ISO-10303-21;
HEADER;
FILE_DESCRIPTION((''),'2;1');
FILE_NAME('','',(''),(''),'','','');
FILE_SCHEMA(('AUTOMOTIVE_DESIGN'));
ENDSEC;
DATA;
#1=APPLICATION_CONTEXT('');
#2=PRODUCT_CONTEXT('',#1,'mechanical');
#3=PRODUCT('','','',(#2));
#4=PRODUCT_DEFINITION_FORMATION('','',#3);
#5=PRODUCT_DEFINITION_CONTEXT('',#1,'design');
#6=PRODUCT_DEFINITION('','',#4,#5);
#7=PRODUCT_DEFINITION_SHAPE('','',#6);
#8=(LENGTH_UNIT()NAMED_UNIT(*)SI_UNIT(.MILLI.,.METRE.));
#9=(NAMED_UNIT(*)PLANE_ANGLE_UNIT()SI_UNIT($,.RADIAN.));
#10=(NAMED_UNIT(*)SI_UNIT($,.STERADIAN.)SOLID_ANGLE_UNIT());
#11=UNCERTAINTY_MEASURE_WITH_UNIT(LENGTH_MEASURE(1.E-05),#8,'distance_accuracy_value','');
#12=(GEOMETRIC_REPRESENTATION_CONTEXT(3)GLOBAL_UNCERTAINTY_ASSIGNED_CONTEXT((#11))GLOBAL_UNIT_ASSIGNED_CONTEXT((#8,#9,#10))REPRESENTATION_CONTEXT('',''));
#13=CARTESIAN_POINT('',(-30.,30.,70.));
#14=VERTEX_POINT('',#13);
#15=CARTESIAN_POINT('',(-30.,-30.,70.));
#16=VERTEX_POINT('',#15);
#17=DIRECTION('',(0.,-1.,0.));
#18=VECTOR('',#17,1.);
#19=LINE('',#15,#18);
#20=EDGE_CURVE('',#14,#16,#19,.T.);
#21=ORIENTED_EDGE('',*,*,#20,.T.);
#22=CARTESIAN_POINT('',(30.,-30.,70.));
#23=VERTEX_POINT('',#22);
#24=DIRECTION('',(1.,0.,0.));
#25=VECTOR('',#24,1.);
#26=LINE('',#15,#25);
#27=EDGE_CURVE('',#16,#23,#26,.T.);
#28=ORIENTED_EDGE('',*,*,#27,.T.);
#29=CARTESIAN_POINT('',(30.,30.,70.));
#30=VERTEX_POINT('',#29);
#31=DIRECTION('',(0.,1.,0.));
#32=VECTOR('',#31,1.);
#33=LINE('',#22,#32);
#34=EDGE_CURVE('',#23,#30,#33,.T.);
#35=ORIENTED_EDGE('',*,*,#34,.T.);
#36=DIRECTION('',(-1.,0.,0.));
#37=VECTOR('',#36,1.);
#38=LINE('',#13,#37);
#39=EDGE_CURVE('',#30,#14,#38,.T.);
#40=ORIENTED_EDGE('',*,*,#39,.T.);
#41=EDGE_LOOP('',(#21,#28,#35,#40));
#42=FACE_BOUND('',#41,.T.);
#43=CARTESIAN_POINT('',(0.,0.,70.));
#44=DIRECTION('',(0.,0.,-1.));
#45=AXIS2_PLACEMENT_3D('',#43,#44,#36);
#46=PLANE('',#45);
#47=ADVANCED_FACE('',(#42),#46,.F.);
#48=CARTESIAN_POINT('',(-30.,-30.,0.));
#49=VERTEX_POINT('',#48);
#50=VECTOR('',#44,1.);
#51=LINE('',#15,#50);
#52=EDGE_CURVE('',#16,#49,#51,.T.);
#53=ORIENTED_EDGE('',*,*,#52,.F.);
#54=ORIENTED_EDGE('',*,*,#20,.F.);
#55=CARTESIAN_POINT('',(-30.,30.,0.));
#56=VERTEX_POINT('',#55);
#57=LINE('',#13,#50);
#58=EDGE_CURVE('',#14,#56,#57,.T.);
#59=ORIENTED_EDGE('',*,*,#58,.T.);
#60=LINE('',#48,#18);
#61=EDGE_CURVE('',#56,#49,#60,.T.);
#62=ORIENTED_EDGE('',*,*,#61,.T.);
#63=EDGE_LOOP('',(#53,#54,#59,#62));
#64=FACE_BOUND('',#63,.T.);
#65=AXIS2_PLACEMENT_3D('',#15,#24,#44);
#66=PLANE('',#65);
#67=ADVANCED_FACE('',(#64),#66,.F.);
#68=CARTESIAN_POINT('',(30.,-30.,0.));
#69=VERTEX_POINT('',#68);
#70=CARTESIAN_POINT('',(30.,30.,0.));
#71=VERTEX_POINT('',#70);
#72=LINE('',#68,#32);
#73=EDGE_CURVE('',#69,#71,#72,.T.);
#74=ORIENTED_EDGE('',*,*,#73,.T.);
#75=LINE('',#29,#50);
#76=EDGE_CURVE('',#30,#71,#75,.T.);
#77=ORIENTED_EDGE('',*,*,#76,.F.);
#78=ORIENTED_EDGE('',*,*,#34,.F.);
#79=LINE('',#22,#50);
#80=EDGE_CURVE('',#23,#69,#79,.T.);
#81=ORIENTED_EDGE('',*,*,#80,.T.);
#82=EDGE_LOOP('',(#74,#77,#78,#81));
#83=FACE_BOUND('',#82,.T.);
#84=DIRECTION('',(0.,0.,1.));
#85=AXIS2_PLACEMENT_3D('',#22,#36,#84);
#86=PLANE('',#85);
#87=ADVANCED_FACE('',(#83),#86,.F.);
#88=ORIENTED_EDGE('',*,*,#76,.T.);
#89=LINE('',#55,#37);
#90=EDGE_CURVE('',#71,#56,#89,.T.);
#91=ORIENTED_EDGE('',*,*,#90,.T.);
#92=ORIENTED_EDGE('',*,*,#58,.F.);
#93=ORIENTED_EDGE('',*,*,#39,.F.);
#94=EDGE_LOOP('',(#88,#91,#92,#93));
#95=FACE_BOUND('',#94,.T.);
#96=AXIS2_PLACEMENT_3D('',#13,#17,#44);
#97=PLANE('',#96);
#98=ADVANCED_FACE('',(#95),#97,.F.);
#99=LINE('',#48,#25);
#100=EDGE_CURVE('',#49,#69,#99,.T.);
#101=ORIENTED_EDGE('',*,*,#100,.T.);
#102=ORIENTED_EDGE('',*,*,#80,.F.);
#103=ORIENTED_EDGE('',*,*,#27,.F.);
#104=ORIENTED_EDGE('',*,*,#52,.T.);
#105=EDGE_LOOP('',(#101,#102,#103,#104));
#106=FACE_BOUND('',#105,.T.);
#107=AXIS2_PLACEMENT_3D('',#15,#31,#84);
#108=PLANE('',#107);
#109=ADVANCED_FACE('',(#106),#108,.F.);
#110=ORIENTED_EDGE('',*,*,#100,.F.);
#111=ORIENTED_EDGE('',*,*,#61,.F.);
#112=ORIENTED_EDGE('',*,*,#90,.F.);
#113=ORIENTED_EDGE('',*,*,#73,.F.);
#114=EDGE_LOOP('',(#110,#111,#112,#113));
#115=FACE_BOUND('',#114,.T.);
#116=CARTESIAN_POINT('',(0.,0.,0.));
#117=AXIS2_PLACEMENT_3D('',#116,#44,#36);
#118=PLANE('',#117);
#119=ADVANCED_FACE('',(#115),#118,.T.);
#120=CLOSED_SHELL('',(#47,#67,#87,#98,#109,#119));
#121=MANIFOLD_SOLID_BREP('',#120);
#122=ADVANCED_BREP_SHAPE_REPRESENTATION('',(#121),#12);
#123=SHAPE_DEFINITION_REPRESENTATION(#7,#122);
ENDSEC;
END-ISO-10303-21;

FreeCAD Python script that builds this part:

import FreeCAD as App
import Part
import Sketcher

doc = App.newDocument("Part")
body = doc.addObject("PartDesign::Body", "Body")

# Sketch on XY plane
sketch1 = body.newObject("Sketcher::SketchObject", "Sketch")
sketch1.AttachmentSupport = (doc.getObject("XY_Plane"), [""])
sketch1.MapMode = "FlatFace"
sketch1.addGeometry(Part.LineSegment(App.Vector(-30, 30, 0), App.Vector(-30, -30, 0)), False)
sketch1.addGeometry(Part.LineSegment(App.Vector(-30, -30, 0), App.Vector(30, -30, 0)), False)
sketch1.addGeometry(Part.LineSegment(App.Vector(30, -30, 0), App.Vector(30, 30, 0)), False)
sketch1.addGeometry(Part.LineSegment(App.Vector(30, 30, 0), App.Vector(-30, 30, 0)), False)
sketch1.addConstraint(Sketcher.Constraint("Coincident", 0, 2, 1, 1))
sketch1.addConstraint(Sketcher.Constraint("Coincident", 1, 2, 2, 1))
sketch1.addConstraint(Sketcher.Constraint("Coincident", 2, 2, 3, 1))
sketch1.addConstraint(Sketcher.Constraint("Coincident", 3, 2, 0, 1))
sketch1.addConstraint(Sketcher.Constraint("Vertical", 0))
sketch1.addConstraint(Sketcher.Constraint("Horizontal", 1))
sketch1.addConstraint(Sketcher.Constraint("Vertical", 2))
sketch1.addConstraint(Sketcher.Constraint("Horizontal", 3))
sketch1.addConstraint(Sketcher.Constraint("Symmetric", 0, 2, 2, 2, -1, 1))
sketch1.addConstraint(Sketcher.Constraint("Equal", 3, 0))
sketch1.addConstraint(Sketcher.Constraint("DistanceX", 1, 1, 1, 2, 60.0))
pad1 = body.newObject("PartDesign::Pad", "Pad")
pad1.Profile = sketch1
pad1.Length = 70

doc.recompute()
